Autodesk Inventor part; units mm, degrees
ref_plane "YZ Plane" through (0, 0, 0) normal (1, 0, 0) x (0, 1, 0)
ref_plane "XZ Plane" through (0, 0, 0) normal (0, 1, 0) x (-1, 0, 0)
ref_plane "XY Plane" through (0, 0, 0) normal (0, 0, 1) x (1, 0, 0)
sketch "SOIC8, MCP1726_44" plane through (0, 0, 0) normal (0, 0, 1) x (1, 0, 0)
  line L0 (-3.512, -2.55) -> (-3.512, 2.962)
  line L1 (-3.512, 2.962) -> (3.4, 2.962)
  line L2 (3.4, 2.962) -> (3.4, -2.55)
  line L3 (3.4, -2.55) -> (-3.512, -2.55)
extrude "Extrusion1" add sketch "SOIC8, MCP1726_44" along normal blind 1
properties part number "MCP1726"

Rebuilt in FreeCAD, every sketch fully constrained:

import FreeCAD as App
import Part
import Sketcher
from FreeCAD import Vector


def add_polygon(sketch, points):
    """Adds a closed chain of lines whose ends are joined by coincident constraints."""
    first, n = sketch.GeometryCount, len(points)
    for a, b in zip(points, points[1:] + points[:1]):
        sketch.addGeometry(Part.LineSegment(App.Vector(*a, 0), App.Vector(*b, 0)), False)
    for i in range(n):
        sketch.addConstraint(Sketcher.Constraint("Coincident", first + i, 2, first + (i + 1) % n, 1))

doc = App.newDocument("Part")
params = doc.addObject("Spreadsheet::Sheet", "Params")
for row, (alias, value) in enumerate([
    ("pad1_length", "1 mm"),
], start=1):
    params.set(f"A{row}", alias)
    params.set(f"B{row}", "=" + value)
    params.setAlias(f"B{row}", alias)

body = doc.addObject("PartDesign::Body", "Body")

sketch1 = body.newObject("Sketcher::SketchObject", "Sketch")
sketch1.AttachmentSupport = (doc.getObject("XY_Plane"), [""])
sketch1.MapMode = "FlatFace"
add_polygon(sketch1, [(-4, 3), (-4, -3), (3, -3), (3, 3)])
sketch1.addConstraint([
    Sketcher.Constraint("Vertical", 0),
    Sketcher.Constraint("Horizontal", 1),
    Sketcher.Constraint("Vertical", 2),
    Sketcher.Constraint("Horizontal", 3),
    Sketcher.Constraint("DistanceX", -1, 1, 1, 2, 3.4),
    Sketcher.Constraint("DistanceX", 1, 1, 1, 2, 6.912),
    Sketcher.Constraint("DistanceY", 0, 2, 0, 1, 5.512),
    Sketcher.Constraint("DistanceY", 0, 2, -1, 1, 2.55),
])
pad1 = body.newObject("PartDesign::Pad", "Pad")
pad1.Profile = sketch1
pad1.setExpression("Length", "Params.pad1_length")

doc.recompute()
